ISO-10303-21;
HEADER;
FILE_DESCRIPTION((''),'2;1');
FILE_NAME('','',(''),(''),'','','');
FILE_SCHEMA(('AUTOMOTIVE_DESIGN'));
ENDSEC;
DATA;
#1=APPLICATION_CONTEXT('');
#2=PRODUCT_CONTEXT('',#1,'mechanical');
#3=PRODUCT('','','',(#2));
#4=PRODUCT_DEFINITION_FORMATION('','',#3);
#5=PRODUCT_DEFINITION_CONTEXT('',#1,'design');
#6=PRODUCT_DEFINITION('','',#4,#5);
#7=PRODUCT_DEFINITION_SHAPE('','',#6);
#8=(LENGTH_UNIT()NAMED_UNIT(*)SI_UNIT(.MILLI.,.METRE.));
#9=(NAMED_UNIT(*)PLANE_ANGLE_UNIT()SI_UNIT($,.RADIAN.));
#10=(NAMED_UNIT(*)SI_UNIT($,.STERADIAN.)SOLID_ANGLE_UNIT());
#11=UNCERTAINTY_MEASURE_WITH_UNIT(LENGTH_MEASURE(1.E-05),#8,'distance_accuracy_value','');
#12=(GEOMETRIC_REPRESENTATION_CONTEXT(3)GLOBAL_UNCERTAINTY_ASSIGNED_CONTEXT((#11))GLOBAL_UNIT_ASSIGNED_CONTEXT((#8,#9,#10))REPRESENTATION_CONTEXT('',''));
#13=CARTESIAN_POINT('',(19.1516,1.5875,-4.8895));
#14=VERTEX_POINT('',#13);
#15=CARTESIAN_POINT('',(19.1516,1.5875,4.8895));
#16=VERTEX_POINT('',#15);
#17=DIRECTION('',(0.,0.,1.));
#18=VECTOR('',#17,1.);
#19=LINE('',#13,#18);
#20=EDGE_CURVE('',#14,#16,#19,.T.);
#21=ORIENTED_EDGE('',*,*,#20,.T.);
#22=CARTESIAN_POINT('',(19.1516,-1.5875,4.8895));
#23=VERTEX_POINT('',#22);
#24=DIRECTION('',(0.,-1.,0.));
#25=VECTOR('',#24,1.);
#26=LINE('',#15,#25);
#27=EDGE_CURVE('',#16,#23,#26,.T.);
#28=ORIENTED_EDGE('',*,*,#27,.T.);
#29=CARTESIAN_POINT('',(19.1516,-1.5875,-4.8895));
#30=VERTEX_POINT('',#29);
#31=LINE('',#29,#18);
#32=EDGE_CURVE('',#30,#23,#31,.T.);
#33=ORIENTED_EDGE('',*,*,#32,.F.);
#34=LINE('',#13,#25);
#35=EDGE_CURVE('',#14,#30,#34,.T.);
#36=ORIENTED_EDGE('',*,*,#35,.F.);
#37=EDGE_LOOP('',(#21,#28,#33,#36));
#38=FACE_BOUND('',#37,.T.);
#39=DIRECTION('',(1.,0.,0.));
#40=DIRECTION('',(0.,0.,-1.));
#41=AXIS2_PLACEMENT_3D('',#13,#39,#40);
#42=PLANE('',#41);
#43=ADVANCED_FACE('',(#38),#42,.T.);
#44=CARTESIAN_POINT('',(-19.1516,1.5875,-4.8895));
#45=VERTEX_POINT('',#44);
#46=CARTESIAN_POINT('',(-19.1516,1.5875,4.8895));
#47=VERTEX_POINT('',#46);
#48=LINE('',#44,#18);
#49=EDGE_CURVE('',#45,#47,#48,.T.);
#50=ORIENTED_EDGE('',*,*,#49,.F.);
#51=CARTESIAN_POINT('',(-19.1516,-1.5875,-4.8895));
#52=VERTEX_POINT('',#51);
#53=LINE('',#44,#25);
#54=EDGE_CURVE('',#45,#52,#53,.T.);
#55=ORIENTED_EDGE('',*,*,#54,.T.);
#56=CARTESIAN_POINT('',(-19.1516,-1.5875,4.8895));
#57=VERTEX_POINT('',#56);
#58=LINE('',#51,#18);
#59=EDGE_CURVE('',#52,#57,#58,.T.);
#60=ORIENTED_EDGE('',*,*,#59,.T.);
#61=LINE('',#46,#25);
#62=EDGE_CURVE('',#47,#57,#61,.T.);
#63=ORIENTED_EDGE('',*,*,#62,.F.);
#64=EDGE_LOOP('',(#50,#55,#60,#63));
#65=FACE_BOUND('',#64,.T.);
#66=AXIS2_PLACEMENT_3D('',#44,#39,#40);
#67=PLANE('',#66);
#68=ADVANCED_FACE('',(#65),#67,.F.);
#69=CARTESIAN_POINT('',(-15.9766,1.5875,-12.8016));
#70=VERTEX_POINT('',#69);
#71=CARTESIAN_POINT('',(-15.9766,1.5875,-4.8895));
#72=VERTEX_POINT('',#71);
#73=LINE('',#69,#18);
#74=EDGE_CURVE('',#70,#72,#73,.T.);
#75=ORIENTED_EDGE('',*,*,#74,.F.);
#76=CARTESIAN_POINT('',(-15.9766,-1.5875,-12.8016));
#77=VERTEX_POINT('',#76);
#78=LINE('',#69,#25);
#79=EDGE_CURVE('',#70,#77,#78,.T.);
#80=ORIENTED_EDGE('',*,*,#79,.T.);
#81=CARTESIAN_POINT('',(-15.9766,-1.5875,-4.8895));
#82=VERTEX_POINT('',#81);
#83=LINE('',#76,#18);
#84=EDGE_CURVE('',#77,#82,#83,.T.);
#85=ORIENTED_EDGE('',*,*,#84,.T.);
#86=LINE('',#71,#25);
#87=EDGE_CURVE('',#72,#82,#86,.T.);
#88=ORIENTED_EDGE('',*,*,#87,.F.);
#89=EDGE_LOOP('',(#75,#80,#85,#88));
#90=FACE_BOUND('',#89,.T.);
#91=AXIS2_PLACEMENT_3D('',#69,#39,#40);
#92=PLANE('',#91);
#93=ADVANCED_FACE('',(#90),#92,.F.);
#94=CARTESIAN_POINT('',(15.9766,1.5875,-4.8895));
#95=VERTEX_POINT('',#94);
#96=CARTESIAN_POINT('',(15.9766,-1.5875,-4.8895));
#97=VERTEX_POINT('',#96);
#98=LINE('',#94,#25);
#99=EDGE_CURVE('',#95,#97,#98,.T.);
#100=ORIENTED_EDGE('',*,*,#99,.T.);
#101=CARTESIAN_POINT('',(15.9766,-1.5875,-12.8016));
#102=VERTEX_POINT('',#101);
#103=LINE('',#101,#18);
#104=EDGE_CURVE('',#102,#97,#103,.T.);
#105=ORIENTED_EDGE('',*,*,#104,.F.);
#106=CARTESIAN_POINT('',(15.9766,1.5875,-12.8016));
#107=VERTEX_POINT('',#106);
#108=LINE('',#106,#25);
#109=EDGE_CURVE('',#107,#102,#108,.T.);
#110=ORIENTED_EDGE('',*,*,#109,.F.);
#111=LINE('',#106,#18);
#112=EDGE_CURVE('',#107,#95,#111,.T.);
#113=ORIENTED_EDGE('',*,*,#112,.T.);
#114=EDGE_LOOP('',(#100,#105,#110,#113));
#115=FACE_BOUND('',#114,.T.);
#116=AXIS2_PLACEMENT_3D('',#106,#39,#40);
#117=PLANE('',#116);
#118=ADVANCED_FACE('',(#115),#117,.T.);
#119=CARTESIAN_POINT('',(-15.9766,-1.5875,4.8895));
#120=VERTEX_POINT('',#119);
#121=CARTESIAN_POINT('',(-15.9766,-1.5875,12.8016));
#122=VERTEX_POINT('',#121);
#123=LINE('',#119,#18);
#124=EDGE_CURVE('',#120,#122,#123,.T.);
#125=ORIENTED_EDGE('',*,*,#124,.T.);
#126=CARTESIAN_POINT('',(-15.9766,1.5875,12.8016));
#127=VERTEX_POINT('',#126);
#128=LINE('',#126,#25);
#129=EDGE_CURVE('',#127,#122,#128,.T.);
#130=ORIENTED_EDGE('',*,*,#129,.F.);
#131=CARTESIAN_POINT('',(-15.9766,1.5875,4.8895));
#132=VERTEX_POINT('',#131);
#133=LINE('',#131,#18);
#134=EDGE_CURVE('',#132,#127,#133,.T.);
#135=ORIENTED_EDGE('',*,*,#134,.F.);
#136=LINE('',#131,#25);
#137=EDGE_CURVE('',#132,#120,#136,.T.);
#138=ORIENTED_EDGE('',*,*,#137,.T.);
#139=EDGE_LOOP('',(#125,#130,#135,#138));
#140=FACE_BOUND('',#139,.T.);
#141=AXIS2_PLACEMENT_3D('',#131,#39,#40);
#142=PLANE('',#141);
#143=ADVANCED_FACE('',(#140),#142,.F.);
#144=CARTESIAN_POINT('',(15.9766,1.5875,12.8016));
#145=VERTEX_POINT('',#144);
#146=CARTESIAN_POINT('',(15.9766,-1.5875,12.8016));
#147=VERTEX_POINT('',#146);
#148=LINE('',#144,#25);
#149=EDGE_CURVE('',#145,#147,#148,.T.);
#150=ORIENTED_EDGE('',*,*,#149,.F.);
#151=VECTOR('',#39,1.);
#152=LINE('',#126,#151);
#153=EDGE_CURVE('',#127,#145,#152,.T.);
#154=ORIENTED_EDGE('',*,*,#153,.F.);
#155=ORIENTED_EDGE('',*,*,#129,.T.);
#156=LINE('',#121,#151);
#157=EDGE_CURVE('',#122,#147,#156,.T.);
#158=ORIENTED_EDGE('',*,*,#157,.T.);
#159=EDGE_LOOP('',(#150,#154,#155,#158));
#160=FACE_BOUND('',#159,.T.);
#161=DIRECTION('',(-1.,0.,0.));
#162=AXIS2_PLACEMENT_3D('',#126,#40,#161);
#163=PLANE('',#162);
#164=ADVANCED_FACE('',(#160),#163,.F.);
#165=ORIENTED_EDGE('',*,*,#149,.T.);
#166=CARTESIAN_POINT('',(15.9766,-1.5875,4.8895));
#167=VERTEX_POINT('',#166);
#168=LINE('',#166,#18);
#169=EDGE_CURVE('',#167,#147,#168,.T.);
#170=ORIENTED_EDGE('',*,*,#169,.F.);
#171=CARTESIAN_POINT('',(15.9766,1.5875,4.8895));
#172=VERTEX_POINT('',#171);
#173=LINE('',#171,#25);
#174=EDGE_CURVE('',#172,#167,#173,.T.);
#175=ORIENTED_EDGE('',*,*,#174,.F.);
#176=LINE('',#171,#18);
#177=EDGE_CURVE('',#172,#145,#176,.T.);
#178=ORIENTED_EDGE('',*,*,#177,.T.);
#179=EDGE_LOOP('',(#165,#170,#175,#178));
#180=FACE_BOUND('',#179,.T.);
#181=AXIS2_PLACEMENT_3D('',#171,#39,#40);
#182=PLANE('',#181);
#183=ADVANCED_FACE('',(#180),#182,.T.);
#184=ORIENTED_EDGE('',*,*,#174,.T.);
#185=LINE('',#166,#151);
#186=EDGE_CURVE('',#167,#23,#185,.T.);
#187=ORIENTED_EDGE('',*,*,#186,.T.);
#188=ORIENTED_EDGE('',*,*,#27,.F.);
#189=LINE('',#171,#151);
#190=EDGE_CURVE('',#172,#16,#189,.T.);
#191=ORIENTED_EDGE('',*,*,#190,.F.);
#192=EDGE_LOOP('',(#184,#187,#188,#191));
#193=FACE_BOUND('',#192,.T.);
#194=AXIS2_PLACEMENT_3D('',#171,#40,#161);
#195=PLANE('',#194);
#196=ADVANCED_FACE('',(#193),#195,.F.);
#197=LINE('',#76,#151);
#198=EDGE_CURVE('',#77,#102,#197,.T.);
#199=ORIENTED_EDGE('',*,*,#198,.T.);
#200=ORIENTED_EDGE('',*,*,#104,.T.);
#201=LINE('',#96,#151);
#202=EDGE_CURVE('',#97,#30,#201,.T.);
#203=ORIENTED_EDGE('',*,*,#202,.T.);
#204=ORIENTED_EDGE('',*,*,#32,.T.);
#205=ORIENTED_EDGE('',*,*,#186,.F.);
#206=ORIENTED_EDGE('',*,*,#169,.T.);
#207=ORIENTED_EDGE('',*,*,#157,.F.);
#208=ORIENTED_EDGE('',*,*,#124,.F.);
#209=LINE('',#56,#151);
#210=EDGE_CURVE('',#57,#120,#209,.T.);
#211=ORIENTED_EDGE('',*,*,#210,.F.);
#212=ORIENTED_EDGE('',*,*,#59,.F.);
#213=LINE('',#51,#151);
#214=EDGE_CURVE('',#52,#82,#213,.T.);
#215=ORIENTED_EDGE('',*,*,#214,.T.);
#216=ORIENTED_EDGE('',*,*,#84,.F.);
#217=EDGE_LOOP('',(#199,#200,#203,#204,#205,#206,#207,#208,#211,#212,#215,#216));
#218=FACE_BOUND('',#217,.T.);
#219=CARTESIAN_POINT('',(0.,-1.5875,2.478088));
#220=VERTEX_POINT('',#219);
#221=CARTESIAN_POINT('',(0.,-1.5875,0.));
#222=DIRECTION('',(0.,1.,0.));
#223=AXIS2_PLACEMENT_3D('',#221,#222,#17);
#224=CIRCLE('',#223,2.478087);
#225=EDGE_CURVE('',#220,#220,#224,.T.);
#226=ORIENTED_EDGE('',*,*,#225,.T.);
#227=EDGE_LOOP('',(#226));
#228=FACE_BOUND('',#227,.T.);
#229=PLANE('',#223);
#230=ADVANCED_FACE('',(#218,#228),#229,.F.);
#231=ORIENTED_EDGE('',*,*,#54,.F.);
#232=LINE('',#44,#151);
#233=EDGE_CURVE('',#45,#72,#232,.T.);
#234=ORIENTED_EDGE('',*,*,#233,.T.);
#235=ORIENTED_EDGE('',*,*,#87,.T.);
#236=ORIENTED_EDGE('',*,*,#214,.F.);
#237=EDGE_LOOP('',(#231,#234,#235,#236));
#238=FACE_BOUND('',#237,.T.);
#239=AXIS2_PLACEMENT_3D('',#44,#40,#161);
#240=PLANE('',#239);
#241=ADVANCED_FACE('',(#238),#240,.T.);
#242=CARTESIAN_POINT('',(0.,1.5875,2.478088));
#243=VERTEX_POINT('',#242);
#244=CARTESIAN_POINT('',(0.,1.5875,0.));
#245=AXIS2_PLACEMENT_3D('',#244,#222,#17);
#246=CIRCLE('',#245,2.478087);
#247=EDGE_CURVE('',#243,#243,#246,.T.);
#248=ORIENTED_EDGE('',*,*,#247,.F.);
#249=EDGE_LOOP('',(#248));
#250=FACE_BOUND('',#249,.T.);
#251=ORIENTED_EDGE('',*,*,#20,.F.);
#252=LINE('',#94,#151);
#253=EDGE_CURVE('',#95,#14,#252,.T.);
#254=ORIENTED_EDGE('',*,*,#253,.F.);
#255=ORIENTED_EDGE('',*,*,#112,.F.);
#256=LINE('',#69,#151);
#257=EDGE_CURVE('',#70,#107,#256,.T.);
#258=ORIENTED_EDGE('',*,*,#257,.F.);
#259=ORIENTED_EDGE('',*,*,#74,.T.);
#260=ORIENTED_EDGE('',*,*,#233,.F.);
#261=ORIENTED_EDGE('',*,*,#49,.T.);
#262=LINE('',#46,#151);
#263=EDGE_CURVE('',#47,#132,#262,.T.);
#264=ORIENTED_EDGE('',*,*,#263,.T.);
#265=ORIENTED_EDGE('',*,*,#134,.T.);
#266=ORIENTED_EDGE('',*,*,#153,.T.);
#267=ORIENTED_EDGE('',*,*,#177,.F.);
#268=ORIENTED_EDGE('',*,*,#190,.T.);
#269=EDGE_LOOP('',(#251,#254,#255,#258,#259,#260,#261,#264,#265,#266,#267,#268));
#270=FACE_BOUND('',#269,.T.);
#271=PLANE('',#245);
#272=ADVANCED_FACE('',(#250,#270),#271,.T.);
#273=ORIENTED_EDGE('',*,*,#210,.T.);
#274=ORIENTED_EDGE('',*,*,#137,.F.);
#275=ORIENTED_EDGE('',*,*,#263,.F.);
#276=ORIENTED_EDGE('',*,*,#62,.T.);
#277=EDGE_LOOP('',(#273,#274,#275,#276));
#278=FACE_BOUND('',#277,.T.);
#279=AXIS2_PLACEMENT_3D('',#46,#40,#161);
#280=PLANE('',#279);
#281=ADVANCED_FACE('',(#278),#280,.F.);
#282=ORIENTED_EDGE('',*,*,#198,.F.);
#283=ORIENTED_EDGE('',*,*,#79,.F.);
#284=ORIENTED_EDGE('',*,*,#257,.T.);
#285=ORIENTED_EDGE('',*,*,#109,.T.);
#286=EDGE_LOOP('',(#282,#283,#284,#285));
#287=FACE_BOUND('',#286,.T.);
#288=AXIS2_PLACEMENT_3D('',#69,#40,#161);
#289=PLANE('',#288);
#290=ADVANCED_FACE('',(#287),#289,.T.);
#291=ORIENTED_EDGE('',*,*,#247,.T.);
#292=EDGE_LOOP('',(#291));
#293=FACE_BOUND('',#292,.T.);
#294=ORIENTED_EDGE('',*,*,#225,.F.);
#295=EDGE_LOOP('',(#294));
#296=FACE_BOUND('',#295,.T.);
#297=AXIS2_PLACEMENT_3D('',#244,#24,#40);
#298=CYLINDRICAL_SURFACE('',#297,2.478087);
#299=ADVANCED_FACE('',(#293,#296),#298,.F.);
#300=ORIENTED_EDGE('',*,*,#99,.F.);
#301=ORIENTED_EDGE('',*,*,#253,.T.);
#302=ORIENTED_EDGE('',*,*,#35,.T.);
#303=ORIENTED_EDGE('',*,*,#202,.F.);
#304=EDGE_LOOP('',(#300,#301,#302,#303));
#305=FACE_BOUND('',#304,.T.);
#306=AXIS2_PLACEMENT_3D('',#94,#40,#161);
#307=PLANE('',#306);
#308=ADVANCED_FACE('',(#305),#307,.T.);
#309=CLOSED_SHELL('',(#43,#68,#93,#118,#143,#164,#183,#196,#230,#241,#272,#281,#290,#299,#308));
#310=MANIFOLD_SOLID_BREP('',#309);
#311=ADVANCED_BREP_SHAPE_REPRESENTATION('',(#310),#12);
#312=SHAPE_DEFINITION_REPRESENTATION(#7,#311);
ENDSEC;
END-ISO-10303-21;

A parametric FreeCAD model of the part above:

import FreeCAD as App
import Part
import Sketcher
from FreeCAD import Vector
Q = App.Units.Quantity


def add_polygon(sketch, points):
    """Adds a closed chain of lines whose ends are joined by coincident constraints."""
    first, n = sketch.GeometryCount, len(points)
    for a, b in zip(points, points[1:] + points[:1]):
        sketch.addGeometry(Part.LineSegment(App.Vector(*a, 0), App.Vector(*b, 0)), False)
    for i in range(n):
        sketch.addConstraint(Sketcher.Constraint("Coincident", first + i, 2, first + (i + 1) % n, 1))

doc = App.newDocument("Part")
params = doc.addObject("Spreadsheet::Sheet", "Params")
for row, (alias, value) in enumerate([
    ("sketch1_width", "1.258 in"),
    ("sketch1_width2", "0.125 in"),
    ("sketch1_height", "0.385 in"),
    ("pad1_length", "0.125 in"),
], start=1):
    params.set(f"A{row}", alias)
    params.set(f"B{row}", "=" + value)
    params.setAlias(f"B{row}", alias)

body = doc.addObject("PartDesign::Body", "Body")

sketch1 = doc.addObject("Sketcher::SketchObject", "Sketch")
body.addObject(sketch1)
sketch1.AttachmentSupport = (doc.XZ_Plane, [""])
sketch1.MapMode = "FlatFace"
add_polygon(sketch1, [(16, -12.8), (-16, -12.8), (-16, -4.9), (-19.2, -4.9), (-19.2, 4.9), (-16, 4.9), (-16, 12.8), (16, 12.8), (16, 4.9), (19.2, 4.9), (19.2, -4.9), (16, -4.9)])
sketch1.addGeometry(Part.Circle(Vector(0, 0, 0), Vector(0, 0, 1), 2.5), False)
sketch1.addConstraint([
    Sketcher.Constraint("Horizontal", 0),
    Sketcher.Constraint("Vertical", 1),
    Sketcher.Constraint("Horizontal", 2),
    Sketcher.Constraint("Vertical", 3),
    Sketcher.Constraint("Horizontal", 4),
    Sketcher.Constraint("Vertical", 5),
    Sketcher.Constraint("Horizontal", 6),
    Sketcher.Constraint("Vertical", 7),
    Sketcher.Constraint("Horizontal", 8),
    Sketcher.Constraint("Vertical", 9),
    Sketcher.Constraint("Horizontal", 10),
    Sketcher.Constraint("Vertical", 11),
    Sketcher.Constraint("Coincident", 12, 3, -1, 1),
    Sketcher.Constraint("Symmetric", 0, 2, 6, 2, -1, 1),
    Sketcher.Constraint("Symmetric", 2, 2, 8, 2, -1, 1),
    Sketcher.Constraint("Symmetric", 4, 2, 10, 2, -1, 1),
    Sketcher.Constraint("Symmetric", 4, 2, 7, 2, -2),
    Sketcher.Constraint("DistanceX", 0, 2, 0, 1, Q("1.258 in")),
    Sketcher.Constraint("DistanceX", 2, 2, 2, 1, Q("0.125 in")),
    Sketcher.Constraint("DistanceY", 3, 1, 3, 2, Q("0.385 in")),
    Sketcher.Constraint("DistanceY", 1, 1, 1, 2, Q("0.3115 in")),
    Sketcher.Constraint("Diameter", 12, 4.956175),
])
sketch1.setExpression("Constraints[29]", "Params.sketch1_width")
sketch1.setExpression("Constraints[30]", "Params.sketch1_width2")
sketch1.setExpression("Constraints[31]", "Params.sketch1_height")
pad1 = doc.addObject("PartDesign::Pad", "Pad")
body.addObject(pad1)
pad1.Profile = sketch1
pad1.setExpression("Length", "Params.pad1_length")
pad1.Midplane = True

doc.recompute()
